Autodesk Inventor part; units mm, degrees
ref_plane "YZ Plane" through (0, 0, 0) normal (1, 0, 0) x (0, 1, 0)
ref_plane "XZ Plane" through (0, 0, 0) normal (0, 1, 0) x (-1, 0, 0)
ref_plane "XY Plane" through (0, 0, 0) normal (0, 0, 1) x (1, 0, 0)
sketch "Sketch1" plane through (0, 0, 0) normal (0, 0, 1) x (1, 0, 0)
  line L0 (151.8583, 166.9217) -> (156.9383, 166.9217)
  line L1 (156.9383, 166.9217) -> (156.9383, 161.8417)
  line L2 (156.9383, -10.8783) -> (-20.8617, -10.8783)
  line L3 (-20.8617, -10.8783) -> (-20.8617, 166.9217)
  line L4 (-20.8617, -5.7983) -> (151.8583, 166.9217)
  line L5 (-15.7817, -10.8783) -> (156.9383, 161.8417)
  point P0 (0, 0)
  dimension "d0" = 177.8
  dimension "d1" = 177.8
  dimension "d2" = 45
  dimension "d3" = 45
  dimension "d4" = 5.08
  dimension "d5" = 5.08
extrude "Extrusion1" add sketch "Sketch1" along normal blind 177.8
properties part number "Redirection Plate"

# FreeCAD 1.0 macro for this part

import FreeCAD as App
import Part
import Sketcher
Q = App.Units.Quantity


def add_polygon(sketch, points):
    """Adds a closed chain of lines whose ends are joined by coincident constraints."""
    first, n = sketch.GeometryCount, len(points)
    for a, b in zip(points, points[1:] + points[:1]):
        sketch.addGeometry(Part.LineSegment(App.Vector(*a, 0), App.Vector(*b, 0)), False)
    for i in range(n):
        sketch.addConstraint(Sketcher.Constraint("Coincident", first + i, 2, first + (i + 1) % n, 1))

doc = App.newDocument("Part")
body = doc.addObject("PartDesign::Body", "Body")

sketch1 = body.newObject("Sketcher::SketchObject", "Sketch")
sketch1.AttachmentSupport = (doc.getObject("XY_Plane"), [""])
sketch1.MapMode = "FlatFace"
add_polygon(sketch1, [(157, 167), (152, 167), (-21, -6), (-21, -11), (-16, -11), (157, 162)])
sketch1.addConstraint(Sketcher.Constraint("Horizontal", 0))
sketch1.addConstraint(Sketcher.Constraint("Vertical", 2))
sketch1.addConstraint(Sketcher.Constraint("Horizontal", 3))
sketch1.addConstraint(Sketcher.Constraint("Vertical", 5))
sketch1.addConstraint(Sketcher.Constraint("Parallel", 1, 4))
sketch1.addConstraint(Sketcher.Constraint("Equal", 0, 3))
sketch1.addConstraint(Sketcher.Constraint("Equal", 3, 2))
sketch1.addConstraint(Sketcher.Constraint("DistanceX", 0, 2, 0, 1, Q("0.2 in")))
sketch1.addConstraint(Sketcher.Constraint("Angle", 4, Q("45 deg")))
sketch1.addConstraint(Sketcher.Constraint("DistanceY", 2, 2, 0, 2, Q("7 in")))
sketch1.addConstraint(Sketcher.Constraint("DistanceX", -1, 1, 0, 2, 151.8583))
sketch1.addConstraint(Sketcher.Constraint("DistanceY", -1, 1, 0, 2, 166.9217))
pad1 = body.newObject("PartDesign::Pad", "Pad")
pad1.Profile = sketch1
pad1.Length = Q("7 in")

doc.recompute()
